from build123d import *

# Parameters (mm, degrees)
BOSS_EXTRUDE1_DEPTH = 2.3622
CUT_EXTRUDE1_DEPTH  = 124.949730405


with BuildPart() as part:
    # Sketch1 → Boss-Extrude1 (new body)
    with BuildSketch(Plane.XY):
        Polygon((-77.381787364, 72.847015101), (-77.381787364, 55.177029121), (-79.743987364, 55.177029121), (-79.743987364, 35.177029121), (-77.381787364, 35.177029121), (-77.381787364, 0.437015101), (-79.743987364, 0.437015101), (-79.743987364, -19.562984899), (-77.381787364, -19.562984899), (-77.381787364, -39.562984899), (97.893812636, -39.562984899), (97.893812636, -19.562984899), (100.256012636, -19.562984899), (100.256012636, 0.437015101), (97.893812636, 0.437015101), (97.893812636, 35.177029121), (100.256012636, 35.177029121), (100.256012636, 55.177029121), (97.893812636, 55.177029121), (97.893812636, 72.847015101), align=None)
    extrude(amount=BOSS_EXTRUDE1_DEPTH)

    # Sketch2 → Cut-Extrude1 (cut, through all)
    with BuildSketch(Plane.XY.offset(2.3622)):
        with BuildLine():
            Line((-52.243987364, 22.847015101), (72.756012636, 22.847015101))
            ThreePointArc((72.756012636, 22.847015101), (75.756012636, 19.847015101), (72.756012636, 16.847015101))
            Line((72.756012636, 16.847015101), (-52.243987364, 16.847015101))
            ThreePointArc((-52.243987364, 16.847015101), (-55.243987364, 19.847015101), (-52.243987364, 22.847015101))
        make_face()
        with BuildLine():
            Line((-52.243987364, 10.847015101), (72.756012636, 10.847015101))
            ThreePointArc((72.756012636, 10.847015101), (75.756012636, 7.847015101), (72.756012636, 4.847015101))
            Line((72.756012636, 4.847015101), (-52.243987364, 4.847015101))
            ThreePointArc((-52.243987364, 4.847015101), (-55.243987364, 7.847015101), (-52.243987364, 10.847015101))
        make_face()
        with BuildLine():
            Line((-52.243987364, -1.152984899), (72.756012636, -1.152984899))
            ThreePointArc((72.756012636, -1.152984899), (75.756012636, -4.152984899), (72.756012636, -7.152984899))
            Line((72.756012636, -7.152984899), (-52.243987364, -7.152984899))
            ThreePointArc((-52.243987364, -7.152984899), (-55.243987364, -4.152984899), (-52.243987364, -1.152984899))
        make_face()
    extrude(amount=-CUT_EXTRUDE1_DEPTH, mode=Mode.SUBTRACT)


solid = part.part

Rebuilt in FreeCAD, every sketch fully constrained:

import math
import FreeCAD as App
import Part
import Sketcher
from FreeCAD import Vector

doc = App.newDocument("Part")
body = doc.addObject("PartDesign::Body", "Body")

# Sketch on XY plane
sketch1 = body.newObject("Sketcher::SketchObject", "Sketch")
sketch1.AttachmentSupport = (doc.getObject("XY_Plane"), [""])
sketch1.MapMode = "FlatFace"
sketch1.addGeometry([
    Part.LineSegment(Vector(-77.4, 72.8, 0), Vector(-77.4, 55.2, 0)),  # 0
    Part.LineSegment(Vector(-77.4, 55.2, 0), Vector(-79.7, 55.2, 0)),  # 1
    Part.LineSegment(Vector(-79.7, 55.2, 0), Vector(-79.7, 35.2, 0)),  # 2
    Part.LineSegment(Vector(-79.7, 35.2, 0), Vector(-77.4, 35.2, 0)),  # 3
    Part.LineSegment(Vector(-77.4, 35.2, 0), Vector(-77.4, 0.4, 0)),  # 4
    Part.LineSegment(Vector(-77.4, 0.4, 0), Vector(-79.7, 0.4, 0)),  # 5
    Part.LineSegment(Vector(-79.7, 0.4, 0), Vector(-79.7, -19.6, 0)),  # 6
    Part.LineSegment(Vector(-79.7, -19.6, 0), Vector(-77.4, -19.6, 0)),  # 7
    Part.LineSegment(Vector(-77.4, -19.6, 0), Vector(-77.4, -39.6, 0)),  # 8
    Part.LineSegment(Vector(-77.4, -39.6, 0), Vector(97.9, -39.6, 0)),  # 9
    Part.LineSegment(Vector(97.9, -39.6, 0), Vector(97.9, -19.6, 0)),  # 10
    Part.LineSegment(Vector(97.9, -19.6, 0), Vector(100.3, -19.6, 0)),  # 11
    Part.LineSegment(Vector(100.3, -19.6, 0), Vector(100.3, 0.4, 0)),  # 12
    Part.LineSegment(Vector(100.3, 0.4, 0), Vector(97.9, 0.4, 0)),  # 13
    Part.LineSegment(Vector(97.9, 0.4, 0), Vector(97.9, 35.2, 0)),  # 14
    Part.LineSegment(Vector(97.9, 35.2, 0), Vector(100.3, 35.2, 0)),  # 15
    Part.LineSegment(Vector(100.3, 35.2, 0), Vector(100.3, 55.2, 0)),  # 16
    Part.LineSegment(Vector(100.3, 55.2, 0), Vector(97.9, 55.2, 0)),  # 17
    Part.LineSegment(Vector(97.9, 55.2, 0), Vector(97.9, 72.8, 0)),  # 18
    Part.LineSegment(Vector(97.9, 72.8, 0), Vector(-77.4, 72.8, 0)),  # 19
], False)
sketch1.addConstraint([
    Sketcher.Constraint("Coincident", 0, 2, 1, 1),
    Sketcher.Constraint("Coincident", 1, 2, 2, 1),
    Sketcher.Constraint("Coincident", 2, 2, 3, 1),
    Sketcher.Constraint("Coincident", 3, 2, 4, 1),
    Sketcher.Constraint("Coincident", 4, 2, 5, 1),
    Sketcher.Constraint("Coincident", 5, 2, 6, 1),
    Sketcher.Constraint("Coincident", 6, 2, 7, 1),
    Sketcher.Constraint("Coincident", 7, 2, 8, 1),
    Sketcher.Constraint("Coincident", 8, 2, 9, 1),
    Sketcher.Constraint("Coincident", 9, 2, 10, 1),
    Sketcher.Constraint("Coincident", 10, 2, 11, 1),
    Sketcher.Constraint("Coincident", 11, 2, 12, 1),
    Sketcher.Constraint("Coincident", 12, 2, 13, 1),
    Sketcher.Constraint("Coincident", 13, 2, 14, 1),
    Sketcher.Constraint("Coincident", 14, 2, 15, 1),
    Sketcher.Constraint("Coincident", 15, 2, 16, 1),
    Sketcher.Constraint("Coincident", 16, 2, 17, 1),
    Sketcher.Constraint("Coincident", 17, 2, 18, 1),
    Sketcher.Constraint("Coincident", 18, 2, 19, 1),
    Sketcher.Constraint("Coincident", 19, 2, 0, 1),
    Sketcher.Constraint("Vertical", 0),
    Sketcher.Constraint("Horizontal", 1),
    Sketcher.Constraint("Vertical", 2),
    Sketcher.Constraint("Horizontal", 3),
    Sketcher.Constraint("Vertical", 4),
    Sketcher.Constraint("Horizontal", 5),
    Sketcher.Constraint("Vertical", 6),
    Sketcher.Constraint("Horizontal", 7),
    Sketcher.Constraint("Vertical", 8),
    Sketcher.Constraint("Horizontal", 9),
    Sketcher.Constraint("Vertical", 10),
    Sketcher.Constraint("Horizontal", 11),
    Sketcher.Constraint("Vertical", 12),
    Sketcher.Constraint("Horizontal", 13),
    Sketcher.Constraint("Vertical", 14),
    Sketcher.Constraint("Horizontal", 15),
    Sketcher.Constraint("Vertical", 16),
    Sketcher.Constraint("Horizontal", 17),
    Sketcher.Constraint("Vertical", 18),
    Sketcher.Constraint("Horizontal", 19),
    Sketcher.Constraint("Horizontal", 7, 2, 10, 2),
    Sketcher.Constraint("Horizontal", 5, 2, 12, 2),
    Sketcher.Constraint("Horizontal", 3, 2, 14, 2),
    Sketcher.Constraint("Horizontal", 1, 2, 16, 2),
    Sketcher.Constraint("Vertical", 0, 2, 3, 2),
    Sketcher.Constraint("Vertical", 2, 2, 5, 2),
    Sketcher.Constraint("Vertical", 4, 2, 7, 2),
    Sketcher.Constraint("Vertical", 10, 2, 13, 2),
    Sketcher.Constraint("Vertical", 12, 2, 15, 2),
    Sketcher.Constraint("Vertical", 14, 2, 17, 2),
    Sketcher.Constraint("Equal", 7, 11),
    Sketcher.Constraint("Equal", 2, 6),
    Sketcher.Constraint("Equal", 6, 8),
    Sketcher.Constraint("DistanceY", 2, 2, 2, 1, 20.0),
    Sketcher.Constraint("DistanceY", 13, 2, 18, 2, 72.41),
    Sketcher.Constraint("DistanceX", 1, 2, 1, 1, 2.3622),
    Sketcher.Constraint("DistanceX", 9, 1, 9, 2, 175.2756),
    Sketcher.Constraint("DistanceY", 0, 2, 0, 1, 17.669986),
    Sketcher.Constraint("DistanceY", -1, 1, 0, 2, 55.177029),
    Sketcher.Constraint("DistanceX", 0, 2, -1, 1, 77.381787),
])
pad1 = body.newObject("PartDesign::Pad", "Pad")
pad1.Profile = sketch1
pad1.Length = 2.3622

# Sketch on XY plane
sketch2 = body.newObject("Sketcher::SketchObject", "Sketch001")
sketch2.AttachmentSupport = (doc.getObject("XY_Plane"), [""])
sketch2.MapMode = "FlatFace"
sketch2.AttachmentOffset = App.Placement(Vector(0, 0, 2.3622), App.Rotation())
sketch2.addGeometry([
    Part.LineSegment(Vector(72.8, 22.8, 0), Vector(-52.2, 22.8, 0)),  # 0
    Part.ArcOfCircle(Part.Circle(Vector(-52.2, 19.8, 0), Vector(0, 0, 1), 3), math.radians(90), math.radians(270)),  # 1
    Part.LineSegment(Vector(-52.2, 16.8, 0), Vector(72.8, 16.8, 0)),  # 2
    Part.ArcOfCircle(Part.Circle(Vector(72.8, 19.8, 0), Vector(0, 0, 1), 3), math.radians(-90), math.radians(90)),  # 3
    Part.LineSegment(Vector(72.8, 10.8, 0), Vector(-52.2, 10.8, 0)),  # 4
    Part.ArcOfCircle(Part.Circle(Vector(-52.2, 7.8, 0), Vector(0, 0, 1), 3), math.radians(90), math.radians(270)),  # 5
    Part.LineSegment(Vector(-52.2, 4.8, 0), Vector(72.8, 4.8, 0)),  # 6
    Part.ArcOfCircle(Part.Circle(Vector(72.8, 7.8, 0), Vector(0, 0, 1), 3), math.radians(-90), math.radians(90)),  # 7
    Part.LineSegment(Vector(72.8, -1.2, 0), Vector(-52.2, -1.2, 0)),  # 8
    Part.ArcOfCircle(Part.Circle(Vector(-52.2, -4.2, 0), Vector(0, 0, 1), 3), math.radians(90), math.radians(270)),  # 9
    Part.LineSegment(Vector(-52.2, -7.2, 0), Vector(72.8, -7.2, 0)),  # 10
    Part.ArcOfCircle(Part.Circle(Vector(72.8, -4.2, 0), Vector(0, 0, 1), 3), math.radians(-90), math.radians(90)),  # 11
], False)
sketch2.addConstraint([
    Sketcher.Constraint("Tangent", 0, 2, 1, 1),
    Sketcher.Constraint("Tangent", 1, 2, 2, 1),
    Sketcher.Constraint("Tangent", 2, 2, 3, 1),
    Sketcher.Constraint("Tangent", 3, 2, 0, 1),
    Sketcher.Constraint("Tangent", 4, 2, 5, 1),
    Sketcher.Constraint("Tangent", 5, 2, 6, 1),
    Sketcher.Constraint("Tangent", 6, 2, 7, 1),
    Sketcher.Constraint("Tangent", 7, 2, 4, 1),
    Sketcher.Constraint("Tangent", 8, 2, 9, 1),
    Sketcher.Constraint("Tangent", 9, 2, 10, 1),
    Sketcher.Constraint("Tangent", 10, 2, 11, 1),
    Sketcher.Constraint("Tangent", 11, 2, 8, 1),
    Sketcher.Constraint("Horizontal", 0),
    Sketcher.Constraint("Horizontal", 2),
    Sketcher.Constraint("Horizontal", 4),
    Sketcher.Constraint("Horizontal", 6),
    Sketcher.Constraint("Horizontal", 8),
    Sketcher.Constraint("Horizontal", 10),
    Sketcher.Constraint("Equal", 3, 5),
    Sketcher.Constraint("Equal", 7, 9),
    Sketcher.Constraint("Vertical", 1, 3, 5, 3),
    Sketcher.Constraint("Vertical", 3, 3, 7, 3),
    Sketcher.Constraint("Vertical", 5, 3, 9, 3),
    Sketcher.Constraint("Vertical", 7, 3, 11, 3),
    Sketcher.Constraint("Radius", 1, 3.0),
    Sketcher.Constraint("DistanceX", 0, 2, 0, 1, 125.0),
    Sketcher.Constraint("DistanceY", 5, 3, 1, 3, 12.0),
    Sketcher.Constraint("DistanceY", 9, 3, 5, 3, 12.0),
    Sketcher.Constraint("DistanceX", 1, 3, -1, 1, 52.243987),
    Sketcher.Constraint("DistanceY", -1, 1, 1, 3, 19.847015),
])
pocket1 = body.newObject("PartDesign::Pocket", "Pocket")
pocket1.Profile = sketch2
pocket1.Type = "ThroughAll"

doc.recompute()
